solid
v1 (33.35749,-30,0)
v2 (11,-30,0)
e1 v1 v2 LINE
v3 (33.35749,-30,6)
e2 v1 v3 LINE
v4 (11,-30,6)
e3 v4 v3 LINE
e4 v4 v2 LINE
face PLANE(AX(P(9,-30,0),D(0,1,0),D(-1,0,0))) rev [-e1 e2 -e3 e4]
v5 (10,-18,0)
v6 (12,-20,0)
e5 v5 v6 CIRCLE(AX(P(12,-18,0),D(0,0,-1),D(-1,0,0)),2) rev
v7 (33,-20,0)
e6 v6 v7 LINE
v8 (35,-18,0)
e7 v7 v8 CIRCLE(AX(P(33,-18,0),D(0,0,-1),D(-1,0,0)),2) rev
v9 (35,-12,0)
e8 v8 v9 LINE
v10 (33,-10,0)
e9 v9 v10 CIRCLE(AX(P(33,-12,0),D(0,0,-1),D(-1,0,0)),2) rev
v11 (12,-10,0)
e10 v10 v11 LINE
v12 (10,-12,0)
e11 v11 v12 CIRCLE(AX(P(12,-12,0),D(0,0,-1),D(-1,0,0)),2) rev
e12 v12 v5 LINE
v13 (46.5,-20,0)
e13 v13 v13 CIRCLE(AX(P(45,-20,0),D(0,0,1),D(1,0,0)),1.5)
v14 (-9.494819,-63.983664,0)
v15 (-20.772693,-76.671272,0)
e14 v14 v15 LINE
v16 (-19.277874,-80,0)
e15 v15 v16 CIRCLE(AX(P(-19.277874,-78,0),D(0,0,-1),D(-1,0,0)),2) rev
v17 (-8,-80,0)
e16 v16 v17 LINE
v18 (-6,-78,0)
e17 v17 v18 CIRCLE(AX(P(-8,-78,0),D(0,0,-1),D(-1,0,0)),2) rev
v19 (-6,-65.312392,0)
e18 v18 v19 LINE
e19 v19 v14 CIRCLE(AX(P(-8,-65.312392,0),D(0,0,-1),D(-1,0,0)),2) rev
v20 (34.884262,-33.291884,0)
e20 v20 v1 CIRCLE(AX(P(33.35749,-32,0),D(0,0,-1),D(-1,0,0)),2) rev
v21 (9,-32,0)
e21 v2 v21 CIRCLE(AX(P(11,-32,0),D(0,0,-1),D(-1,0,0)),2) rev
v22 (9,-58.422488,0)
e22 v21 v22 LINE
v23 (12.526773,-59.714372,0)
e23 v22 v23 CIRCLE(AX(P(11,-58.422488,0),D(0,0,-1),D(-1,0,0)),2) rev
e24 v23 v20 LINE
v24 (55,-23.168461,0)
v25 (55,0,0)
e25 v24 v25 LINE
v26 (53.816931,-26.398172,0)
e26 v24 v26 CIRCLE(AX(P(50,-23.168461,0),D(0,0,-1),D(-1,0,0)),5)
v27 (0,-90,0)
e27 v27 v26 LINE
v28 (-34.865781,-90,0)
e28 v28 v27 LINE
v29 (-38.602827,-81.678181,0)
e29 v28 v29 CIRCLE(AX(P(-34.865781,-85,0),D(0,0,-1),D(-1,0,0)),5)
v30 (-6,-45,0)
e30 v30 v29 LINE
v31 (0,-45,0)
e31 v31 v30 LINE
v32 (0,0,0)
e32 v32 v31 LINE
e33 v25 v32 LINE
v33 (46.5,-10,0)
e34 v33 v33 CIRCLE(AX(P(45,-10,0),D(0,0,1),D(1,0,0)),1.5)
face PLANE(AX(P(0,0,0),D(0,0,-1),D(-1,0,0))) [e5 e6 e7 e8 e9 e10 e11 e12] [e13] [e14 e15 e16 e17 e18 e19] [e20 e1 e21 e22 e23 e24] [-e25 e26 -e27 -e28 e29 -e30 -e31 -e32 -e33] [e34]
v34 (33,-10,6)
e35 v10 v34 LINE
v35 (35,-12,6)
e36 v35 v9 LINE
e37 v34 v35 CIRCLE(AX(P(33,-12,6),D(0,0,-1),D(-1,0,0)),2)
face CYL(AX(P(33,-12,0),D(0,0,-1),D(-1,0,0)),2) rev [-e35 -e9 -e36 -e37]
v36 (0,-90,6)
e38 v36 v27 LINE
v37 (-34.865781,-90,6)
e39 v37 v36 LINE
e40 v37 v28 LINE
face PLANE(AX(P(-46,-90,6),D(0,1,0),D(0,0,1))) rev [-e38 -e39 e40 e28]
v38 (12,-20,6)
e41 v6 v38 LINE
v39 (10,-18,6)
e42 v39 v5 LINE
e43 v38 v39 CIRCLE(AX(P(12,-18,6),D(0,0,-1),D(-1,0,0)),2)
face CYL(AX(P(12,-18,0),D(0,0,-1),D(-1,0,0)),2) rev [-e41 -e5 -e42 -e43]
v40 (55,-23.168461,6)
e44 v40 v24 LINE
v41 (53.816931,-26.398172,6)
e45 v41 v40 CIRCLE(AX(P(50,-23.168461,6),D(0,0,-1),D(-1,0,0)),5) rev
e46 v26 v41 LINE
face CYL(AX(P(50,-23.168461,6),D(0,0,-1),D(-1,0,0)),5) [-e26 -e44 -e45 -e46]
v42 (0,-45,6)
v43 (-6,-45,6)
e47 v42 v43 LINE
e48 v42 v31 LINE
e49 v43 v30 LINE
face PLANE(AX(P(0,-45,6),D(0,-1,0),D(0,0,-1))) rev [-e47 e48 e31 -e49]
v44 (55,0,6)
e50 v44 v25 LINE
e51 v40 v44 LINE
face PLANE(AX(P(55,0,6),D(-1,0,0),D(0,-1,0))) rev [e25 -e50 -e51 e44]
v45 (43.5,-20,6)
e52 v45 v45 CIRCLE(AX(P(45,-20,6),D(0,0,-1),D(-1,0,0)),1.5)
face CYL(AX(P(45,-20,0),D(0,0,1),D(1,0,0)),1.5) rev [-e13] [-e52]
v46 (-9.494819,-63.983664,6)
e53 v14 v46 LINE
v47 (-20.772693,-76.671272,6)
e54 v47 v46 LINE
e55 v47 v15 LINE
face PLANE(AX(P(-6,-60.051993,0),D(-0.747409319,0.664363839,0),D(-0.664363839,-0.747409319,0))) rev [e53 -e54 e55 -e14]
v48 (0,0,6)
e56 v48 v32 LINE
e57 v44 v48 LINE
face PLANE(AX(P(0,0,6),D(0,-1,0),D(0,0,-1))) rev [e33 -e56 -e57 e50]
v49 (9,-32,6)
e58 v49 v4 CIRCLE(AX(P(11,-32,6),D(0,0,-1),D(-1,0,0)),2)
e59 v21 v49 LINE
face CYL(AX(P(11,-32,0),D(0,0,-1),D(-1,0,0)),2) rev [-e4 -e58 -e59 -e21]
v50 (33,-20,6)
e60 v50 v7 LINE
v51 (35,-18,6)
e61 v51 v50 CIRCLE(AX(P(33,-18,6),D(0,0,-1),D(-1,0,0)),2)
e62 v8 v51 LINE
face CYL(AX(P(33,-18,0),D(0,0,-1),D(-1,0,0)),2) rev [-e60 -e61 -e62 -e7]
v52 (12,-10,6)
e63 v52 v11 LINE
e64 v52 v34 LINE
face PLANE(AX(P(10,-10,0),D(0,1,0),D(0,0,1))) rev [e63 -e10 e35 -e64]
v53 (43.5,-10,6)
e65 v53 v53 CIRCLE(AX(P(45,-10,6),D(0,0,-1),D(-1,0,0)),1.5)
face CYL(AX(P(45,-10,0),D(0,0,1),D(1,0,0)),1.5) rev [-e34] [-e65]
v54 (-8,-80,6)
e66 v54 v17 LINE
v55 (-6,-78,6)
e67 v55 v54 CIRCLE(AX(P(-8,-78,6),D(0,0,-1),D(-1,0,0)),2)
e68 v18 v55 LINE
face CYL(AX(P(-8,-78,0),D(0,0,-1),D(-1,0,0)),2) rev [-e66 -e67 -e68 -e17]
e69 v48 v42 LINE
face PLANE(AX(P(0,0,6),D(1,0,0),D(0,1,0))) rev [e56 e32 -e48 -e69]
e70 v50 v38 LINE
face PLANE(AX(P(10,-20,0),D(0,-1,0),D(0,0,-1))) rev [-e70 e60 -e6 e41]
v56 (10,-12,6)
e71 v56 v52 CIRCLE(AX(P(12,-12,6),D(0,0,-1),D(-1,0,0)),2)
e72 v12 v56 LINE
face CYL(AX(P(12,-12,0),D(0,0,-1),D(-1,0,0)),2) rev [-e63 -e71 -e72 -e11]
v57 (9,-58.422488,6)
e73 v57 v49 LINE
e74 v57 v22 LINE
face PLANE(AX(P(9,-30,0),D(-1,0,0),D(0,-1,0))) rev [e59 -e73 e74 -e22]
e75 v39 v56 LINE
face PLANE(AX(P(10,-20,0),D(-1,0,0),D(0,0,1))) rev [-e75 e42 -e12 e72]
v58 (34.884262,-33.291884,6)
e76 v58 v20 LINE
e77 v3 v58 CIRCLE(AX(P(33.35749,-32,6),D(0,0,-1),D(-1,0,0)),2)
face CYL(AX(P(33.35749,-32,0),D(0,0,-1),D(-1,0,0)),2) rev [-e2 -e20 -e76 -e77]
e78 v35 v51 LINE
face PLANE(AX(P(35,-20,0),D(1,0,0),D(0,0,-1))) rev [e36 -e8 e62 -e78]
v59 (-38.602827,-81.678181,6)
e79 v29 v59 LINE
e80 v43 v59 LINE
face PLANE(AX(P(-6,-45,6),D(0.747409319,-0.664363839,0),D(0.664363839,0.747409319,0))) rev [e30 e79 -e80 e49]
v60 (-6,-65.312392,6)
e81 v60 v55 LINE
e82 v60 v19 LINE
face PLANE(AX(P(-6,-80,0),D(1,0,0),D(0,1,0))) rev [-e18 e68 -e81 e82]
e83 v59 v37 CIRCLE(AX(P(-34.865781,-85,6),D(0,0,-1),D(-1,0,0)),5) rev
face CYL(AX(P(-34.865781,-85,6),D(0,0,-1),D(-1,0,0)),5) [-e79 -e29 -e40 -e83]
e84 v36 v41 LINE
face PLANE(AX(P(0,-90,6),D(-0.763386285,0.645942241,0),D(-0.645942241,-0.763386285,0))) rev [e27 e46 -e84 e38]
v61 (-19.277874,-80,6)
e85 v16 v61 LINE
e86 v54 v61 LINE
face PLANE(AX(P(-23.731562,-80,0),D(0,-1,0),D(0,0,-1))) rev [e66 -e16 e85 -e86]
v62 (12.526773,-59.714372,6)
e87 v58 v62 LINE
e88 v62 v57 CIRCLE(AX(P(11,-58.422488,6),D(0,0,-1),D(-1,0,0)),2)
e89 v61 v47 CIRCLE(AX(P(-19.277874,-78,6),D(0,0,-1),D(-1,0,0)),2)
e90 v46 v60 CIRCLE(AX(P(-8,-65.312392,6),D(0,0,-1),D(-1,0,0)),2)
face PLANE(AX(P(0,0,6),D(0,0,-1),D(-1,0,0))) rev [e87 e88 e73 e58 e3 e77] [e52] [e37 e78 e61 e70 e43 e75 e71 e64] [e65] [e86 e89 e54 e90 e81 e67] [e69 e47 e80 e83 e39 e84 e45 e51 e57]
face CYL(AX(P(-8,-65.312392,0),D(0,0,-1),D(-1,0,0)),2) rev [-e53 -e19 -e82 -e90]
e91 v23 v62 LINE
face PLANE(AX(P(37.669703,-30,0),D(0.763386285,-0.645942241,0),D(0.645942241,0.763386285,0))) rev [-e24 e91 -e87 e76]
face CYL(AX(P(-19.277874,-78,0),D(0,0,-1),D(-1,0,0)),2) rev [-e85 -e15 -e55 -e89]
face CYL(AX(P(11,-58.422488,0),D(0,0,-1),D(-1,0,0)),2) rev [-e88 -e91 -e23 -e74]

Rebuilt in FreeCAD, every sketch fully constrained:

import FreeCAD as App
import Part
import Sketcher

V = App.Vector
Q = App.Units.Quantity


def edges_at(feature, points):
    """Names of the edges that pass closest to the given points."""
    edges = feature.Shape.Edges
    near = lambda p: min(range(len(edges)), key=lambda i: edges[i].distToShape(Part.Vertex(*p))[0])
    return sorted({f"Edge{near(p) + 1}" for p in points})


def add_polygon(sketch, points):
    """Adds a closed chain of lines whose ends are joined by coincident constraints."""
    first, n = sketch.GeometryCount, len(points)
    for a, b in zip(points, points[1:] + points[:1]):
        sketch.addGeometry(Part.LineSegment(App.Vector(*a, 0), App.Vector(*b, 0)), False)
    for i in range(n):
        sketch.addConstraint(Sketcher.Constraint("Coincident", first + i, 2, first + (i + 1) % n, 1))

doc = App.newDocument("Part")
body = doc.addObject("PartDesign::Body", "Body")

# Sketch on XY plane
sketch1 = body.newObject("Sketcher::SketchObject", "Sketch")
sketch1.AttachmentSupport = (doc.getObject("XY_Plane"), [""])
sketch1.MapMode = "FlatFace"
add_polygon(sketch1, [(55, 0), (0, 0), (0, -45), (-6, -45), (-46, -90), (0, -90), (55, -25)])  # lines 0-6
sketch1.addConstraint([
    Sketcher.Constraint("Horizontal", 0),
    Sketcher.Constraint("Vertical", 1),
    Sketcher.Constraint("Horizontal", 2),
    Sketcher.Constraint("Horizontal", 4),
    Sketcher.Constraint("Vertical", 6),
    Sketcher.Constraint("Coincident", 0, 2, -1, 1),
    Sketcher.Constraint("PointOnObject", 4, 2, -2),
    Sketcher.Constraint("DistanceX", 0, 2, 0, 1, Q("55 mm")),
    Sketcher.Constraint("DistanceX", 2, 2, 2, 1, Q("6 mm")),
    Sketcher.Constraint("DistanceX", 4, 1, 4, 2, Q("46 mm")),
    Sketcher.Constraint("DistanceY", 1, 2, 1, 1, Q("45 mm")),
    Sketcher.Constraint("DistanceY", 6, 1, 6, 2, Q("25 mm")),
    Sketcher.Constraint("DistanceY", 3, 2, -1, 1, Q("90 mm")),
])
pad1 = body.newObject("PartDesign::Pad", "Pad")
pad1.Profile = sketch1
pad1.Length = 6

# Sketch on XY plane
sketch2 = body.newObject("Sketcher::SketchObject", "Sketch001")
sketch2.AttachmentSupport = (doc.getObject("XY_Plane"), [""])
sketch2.MapMode = "FlatFace"
sketch2.AttachmentOffset = App.Placement(V(0, 0, 6), App.Rotation())
sketch2.addGeometry(Part.Circle(V(45, -20, 0), V(0, 0, 1), 1.5), False)  # 0
sketch2.addGeometry(Part.Circle(V(45, -10, 0), V(0, 0, 1), 1.5), False)  # 1
add_polygon(sketch2, [(9, -30), (9, -63.882376), (37.669703, -30)])  # lines 2-4
add_polygon(sketch2, [(-6, -60.051993), (-23.731562, -80), (-6, -80)])  # lines 5-7
add_polygon(sketch2, [(10, -10), (10, -20), (35, -20), (35, -10)])  # lines 8-11
sketch2.addConstraint([
    Sketcher.Constraint("Vertical", 2),
    Sketcher.Constraint("Horizontal", 4),
    Sketcher.Constraint("Horizontal", 6),
    Sketcher.Constraint("Vertical", 7),
    Sketcher.Constraint("Vertical", 8),
    Sketcher.Constraint("Horizontal", 9),
    Sketcher.Constraint("Vertical", 10),
    Sketcher.Constraint("Horizontal", 11),
    Sketcher.Constraint("Equal", 0, 1),
    Sketcher.Constraint("Horizontal", 0, 3, 8, 2),
    Sketcher.Constraint("Horizontal", 1, 3, 10, 2),
    Sketcher.Constraint("Vertical", 0, 3, 1, 3),
    Sketcher.Constraint("Diameter", 0, Q("3 mm")),
    Sketcher.Constraint("DistanceX", 9, 1, 9, 2, Q("25 mm")),
    Sketcher.Constraint("DistanceY", 8, 2, 8, 1, Q("10 mm")),
    Sketcher.Constraint("DistanceX", -1, 1, 0, 3, Q("45 mm")),
    Sketcher.Constraint("DistanceY", 0, 3, -1, 1, Q("20 mm")),
    Sketcher.Constraint("DistanceX", -1, 1, 2, 2, Q("9 mm")),
    Sketcher.Constraint("DistanceY", 3, 2, -1, 1, Q("30 mm")),
    Sketcher.Constraint("DistanceY", 5, 2, -1, 1, Q("80 mm")),
    Sketcher.Constraint("DistanceX", 6, 2, -1, 1, Q("6 mm")),
    Sketcher.Constraint("DistanceX", -1, 1, 8, 2, Q("10 mm")),
    Sketcher.Constraint("DistanceX", 6, 1, 6, 2, Q("17.731562 mm")),
    Sketcher.Constraint("DistanceX", 4, 2, 4, 1, Q("28.669703 mm")),
    Sketcher.Constraint("DistanceY", 2, 2, 2, 1, Q("33.882376 mm")),
    Sketcher.Constraint("DistanceY", 7, 1, 7, 2, Q("19.948007 mm")),
])
pocket1 = body.newObject("PartDesign::Pocket", "Pocket")
pocket1.Profile = sketch2
pocket1.Type = "ThroughAll"
pocket1.Midplane = True
doc.recompute()

fillet = body.newObject("PartDesign::Fillet", "Fillet")
fillet.Base = (pocket1, edges_at(pocket1, [
    (-6, -60.052, 3),
    (-6, -80, 3),
    (-23.732, -80, 3),
    (10, -20, 3),
    (10, -10, 3),
    (35, -10, 3),
    (35, -20, 3),
]))
fillet.Radius = 2
doc.recompute()

fillet2 = body.newObject("PartDesign::Fillet", "Fillet001")
fillet2.Base = (fillet, edges_at(fillet, [(9, -30, 3), (37.67, -30, 3), (9, -63.882, 3)]))
fillet2.Radius = 2
doc.recompute()

fillet3 = body.newObject("PartDesign::Fillet", "Fillet002")
fillet3.Base = (fillet2, edges_at(fillet2, [(55, -25, 3), (-46, -90, 3)]))
fillet3.Radius = 5

doc.recompute()
